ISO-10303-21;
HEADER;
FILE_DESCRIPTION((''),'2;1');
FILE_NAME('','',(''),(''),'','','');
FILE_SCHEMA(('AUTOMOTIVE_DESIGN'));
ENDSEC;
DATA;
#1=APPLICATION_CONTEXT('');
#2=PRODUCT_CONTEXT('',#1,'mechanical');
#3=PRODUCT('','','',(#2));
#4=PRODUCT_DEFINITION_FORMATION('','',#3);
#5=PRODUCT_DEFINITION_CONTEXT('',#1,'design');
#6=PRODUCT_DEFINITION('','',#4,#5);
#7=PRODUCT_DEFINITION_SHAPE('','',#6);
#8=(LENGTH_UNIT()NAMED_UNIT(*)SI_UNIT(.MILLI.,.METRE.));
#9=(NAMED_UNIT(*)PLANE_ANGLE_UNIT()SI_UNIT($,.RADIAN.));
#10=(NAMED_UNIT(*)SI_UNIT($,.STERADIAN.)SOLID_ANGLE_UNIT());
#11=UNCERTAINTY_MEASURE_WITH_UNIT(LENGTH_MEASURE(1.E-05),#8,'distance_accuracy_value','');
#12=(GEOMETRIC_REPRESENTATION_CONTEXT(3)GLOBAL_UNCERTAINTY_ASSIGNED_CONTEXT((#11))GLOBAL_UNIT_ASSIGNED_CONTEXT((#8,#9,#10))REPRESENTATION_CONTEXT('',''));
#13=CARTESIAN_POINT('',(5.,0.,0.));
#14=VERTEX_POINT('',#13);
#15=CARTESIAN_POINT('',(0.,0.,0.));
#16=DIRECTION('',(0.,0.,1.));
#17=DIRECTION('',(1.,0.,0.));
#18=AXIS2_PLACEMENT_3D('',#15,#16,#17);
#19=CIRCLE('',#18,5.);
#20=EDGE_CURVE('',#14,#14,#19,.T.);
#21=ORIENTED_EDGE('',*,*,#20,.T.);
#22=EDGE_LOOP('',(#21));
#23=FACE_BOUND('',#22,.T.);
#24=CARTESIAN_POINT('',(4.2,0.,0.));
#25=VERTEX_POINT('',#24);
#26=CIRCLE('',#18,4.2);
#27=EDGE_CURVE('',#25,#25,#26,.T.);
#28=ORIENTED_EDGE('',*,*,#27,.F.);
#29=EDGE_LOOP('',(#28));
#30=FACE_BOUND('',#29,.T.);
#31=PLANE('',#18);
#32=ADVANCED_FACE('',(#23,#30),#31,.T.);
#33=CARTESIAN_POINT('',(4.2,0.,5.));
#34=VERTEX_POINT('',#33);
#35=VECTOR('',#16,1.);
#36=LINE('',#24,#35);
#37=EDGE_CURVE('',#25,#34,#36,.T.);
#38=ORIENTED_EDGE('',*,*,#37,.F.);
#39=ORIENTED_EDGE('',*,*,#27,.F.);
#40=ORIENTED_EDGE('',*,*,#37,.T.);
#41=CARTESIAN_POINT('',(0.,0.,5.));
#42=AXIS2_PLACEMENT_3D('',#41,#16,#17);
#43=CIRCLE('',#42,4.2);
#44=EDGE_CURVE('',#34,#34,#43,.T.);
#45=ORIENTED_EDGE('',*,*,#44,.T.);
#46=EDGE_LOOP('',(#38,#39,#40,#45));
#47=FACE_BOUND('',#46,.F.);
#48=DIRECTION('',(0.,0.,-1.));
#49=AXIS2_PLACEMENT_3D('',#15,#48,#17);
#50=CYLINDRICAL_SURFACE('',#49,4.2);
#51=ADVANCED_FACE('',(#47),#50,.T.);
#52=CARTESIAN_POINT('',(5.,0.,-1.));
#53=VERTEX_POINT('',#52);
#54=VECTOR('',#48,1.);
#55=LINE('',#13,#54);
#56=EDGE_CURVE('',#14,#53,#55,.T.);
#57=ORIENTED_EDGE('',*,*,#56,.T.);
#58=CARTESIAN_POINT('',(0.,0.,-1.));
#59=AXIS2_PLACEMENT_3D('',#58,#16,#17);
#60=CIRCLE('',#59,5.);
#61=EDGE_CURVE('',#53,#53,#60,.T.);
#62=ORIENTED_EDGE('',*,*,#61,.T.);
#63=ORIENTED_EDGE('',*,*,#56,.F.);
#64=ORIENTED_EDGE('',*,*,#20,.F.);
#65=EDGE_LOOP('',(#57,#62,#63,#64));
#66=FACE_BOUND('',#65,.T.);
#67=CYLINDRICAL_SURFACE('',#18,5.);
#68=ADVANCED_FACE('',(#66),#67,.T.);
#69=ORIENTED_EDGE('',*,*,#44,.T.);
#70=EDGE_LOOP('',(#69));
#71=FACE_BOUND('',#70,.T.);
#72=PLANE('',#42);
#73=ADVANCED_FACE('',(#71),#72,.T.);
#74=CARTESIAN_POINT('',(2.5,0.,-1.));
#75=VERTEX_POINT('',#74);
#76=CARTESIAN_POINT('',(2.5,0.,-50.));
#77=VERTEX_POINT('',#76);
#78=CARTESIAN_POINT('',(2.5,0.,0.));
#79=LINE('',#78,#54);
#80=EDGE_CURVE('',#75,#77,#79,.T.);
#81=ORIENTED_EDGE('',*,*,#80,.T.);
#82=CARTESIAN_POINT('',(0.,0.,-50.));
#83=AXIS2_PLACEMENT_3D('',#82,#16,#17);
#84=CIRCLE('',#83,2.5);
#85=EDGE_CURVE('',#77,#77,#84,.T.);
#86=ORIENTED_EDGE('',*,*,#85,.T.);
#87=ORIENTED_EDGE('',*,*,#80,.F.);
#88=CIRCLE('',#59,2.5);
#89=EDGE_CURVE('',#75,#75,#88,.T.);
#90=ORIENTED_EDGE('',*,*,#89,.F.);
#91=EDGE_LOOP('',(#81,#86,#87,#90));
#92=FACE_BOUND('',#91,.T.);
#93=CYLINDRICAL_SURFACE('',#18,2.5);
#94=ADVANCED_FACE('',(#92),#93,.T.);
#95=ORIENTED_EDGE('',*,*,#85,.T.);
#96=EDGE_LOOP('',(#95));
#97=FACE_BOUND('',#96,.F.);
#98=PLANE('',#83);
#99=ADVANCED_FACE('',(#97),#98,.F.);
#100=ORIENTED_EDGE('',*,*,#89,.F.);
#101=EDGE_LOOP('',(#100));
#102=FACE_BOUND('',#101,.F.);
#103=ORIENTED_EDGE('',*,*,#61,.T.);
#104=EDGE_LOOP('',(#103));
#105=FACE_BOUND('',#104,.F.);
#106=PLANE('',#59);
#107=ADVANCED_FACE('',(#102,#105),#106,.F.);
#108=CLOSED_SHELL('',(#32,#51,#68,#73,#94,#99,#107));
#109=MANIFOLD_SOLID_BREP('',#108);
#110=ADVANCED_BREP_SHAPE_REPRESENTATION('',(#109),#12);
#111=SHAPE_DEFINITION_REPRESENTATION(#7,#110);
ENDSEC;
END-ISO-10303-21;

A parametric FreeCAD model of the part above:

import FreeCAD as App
import Part
import Sketcher
from FreeCAD import Vector
Q = App.Units.Quantity

doc = App.newDocument("Part")
params = doc.addObject("Spreadsheet::Sheet", "Params")
for row, (alias, value) in enumerate([
    ("sketch1_diameter", "5 mm"),
    ("pad1_length", "50 mm"),
    ("sketch2_diameter", "8.4 mm"),
    ("pad2_length", "5 mm"),
    ("sketch3_diameter", "10 mm"),
    ("pad3_length", "1 mm"),
], start=1):
    params.set(f"A{row}", alias)
    params.set(f"B{row}", "=" + value)
    params.setAlias(f"B{row}", alias)

body = doc.addObject("PartDesign::Body", "Body")

sketch1 = body.newObject("Sketcher::SketchObject", "Sketch")
sketch1.AttachmentSupport = (doc.getObject("XY_Plane"), [""])
sketch1.MapMode = "FlatFace"
sketch1.addGeometry(Part.Circle(Vector(0, 0, 0), Vector(0, 0, 1), 2.5), False)
sketch1.addConstraint([
    Sketcher.Constraint("Coincident", 0, 3, -1, 1),
    Sketcher.Constraint("Diameter", 0, Q("5 mm")),
])
sketch1.setExpression("Constraints[1]", "Params.sketch1_diameter")
pad1 = body.newObject("PartDesign::Pad", "Pad")
pad1.Profile = sketch1
pad1.setExpression("Length", "Params.pad1_length")
pad1.Reversed = True

sketch2 = body.newObject("Sketcher::SketchObject", "Sketch001")
sketch2.AttachmentSupport = (doc.getObject("XY_Plane"), [""])
sketch2.MapMode = "FlatFace"
sketch2.addGeometry(Part.Circle(Vector(0, 0, 0), Vector(0, 0, 1), 4.2), False)
sketch2.addConstraint([
    Sketcher.Constraint("Coincident", 0, 3, -1, 1),
    Sketcher.Constraint("Diameter", 0, Q("8.4 mm")),
])
sketch2.setExpression("Constraints[1]", "Params.sketch2_diameter")
pad2 = body.newObject("PartDesign::Pad", "Pad001")
pad2.Profile = sketch2
pad2.setExpression("Length", "Params.pad2_length")

sketch3 = body.newObject("Sketcher::SketchObject", "Sketch002")
sketch3.AttachmentSupport = (doc.getObject("XY_Plane"), [""])
sketch3.MapMode = "FlatFace"
sketch3.addGeometry(Part.Circle(Vector(0, 0, 0), Vector(0, 0, 1), 5), False)
sketch3.addConstraint([
    Sketcher.Constraint("Coincident", 0, 3, -1, 1),
    Sketcher.Constraint("Diameter", 0, Q("10 mm")),
])
sketch3.setExpression("Constraints[1]", "Params.sketch3_diameter")
pad3 = body.newObject("PartDesign::Pad", "Pad002")
pad3.Profile = sketch3
pad3.setExpression("Length", "Params.pad3_length")
pad3.Reversed = True

doc.recompute()
